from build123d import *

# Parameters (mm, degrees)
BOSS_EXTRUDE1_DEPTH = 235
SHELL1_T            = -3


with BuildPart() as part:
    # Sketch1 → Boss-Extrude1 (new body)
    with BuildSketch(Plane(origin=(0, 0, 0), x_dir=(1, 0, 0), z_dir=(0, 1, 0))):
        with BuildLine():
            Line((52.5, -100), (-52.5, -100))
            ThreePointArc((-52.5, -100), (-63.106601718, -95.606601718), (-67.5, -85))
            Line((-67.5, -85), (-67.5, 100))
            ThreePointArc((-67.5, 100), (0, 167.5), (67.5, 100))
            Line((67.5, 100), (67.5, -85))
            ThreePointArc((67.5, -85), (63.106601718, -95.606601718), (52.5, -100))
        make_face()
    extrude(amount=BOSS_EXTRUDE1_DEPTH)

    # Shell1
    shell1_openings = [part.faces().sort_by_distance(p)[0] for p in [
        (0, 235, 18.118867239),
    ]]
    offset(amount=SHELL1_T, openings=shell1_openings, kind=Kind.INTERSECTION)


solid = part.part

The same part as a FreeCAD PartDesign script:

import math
import FreeCAD as App
import Part
import Sketcher
Q = App.Units.Quantity


def faces_at(feature, points):
    """Names of the faces that lie closest to the given points."""
    faces = feature.Shape.Faces
    near = lambda p: min(range(len(faces)), key=lambda i: faces[i].distToShape(Part.Vertex(*p))[0])
    return sorted({f"Face{near(p) + 1}" for p in points})

doc = App.newDocument("Part")
params = doc.addObject("Spreadsheet::Sheet", "Params")
for row, (alias, value) in enumerate([
    ("sketch1_radius", "15 mm"),
    ("sketch1_radius2", "67.5 mm"),
    ("sketch1_height", "185 mm"),
    ("pad1_length", "235 mm"),
    ("thickness_wall", "3 mm"),
], start=1):
    params.set(f"A{row}", alias)
    params.set(f"B{row}", "=" + value)
    params.setAlias(f"B{row}", alias)

body = doc.addObject("PartDesign::Body", "Body")

sketch1 = body.newObject("Sketcher::SketchObject", "Sketch")
sketch1.AttachmentSupport = (doc.getObject("XZ_Plane"), [""])
sketch1.MapMode = "FlatFace"
sketch1.addGeometry([
    Part.LineSegment(App.Vector(-52, 100, 0), App.Vector(52, 100, 0)),
    Part.ArcOfCircle(Part.Circle(App.Vector(53, 85, 0), App.Vector(0, 0, 1), 15), math.radians(0), math.radians(90)),
    Part.LineSegment(App.Vector(68, 85, 0), App.Vector(68, -100, 0)),
    Part.ArcOfCircle(Part.Circle(App.Vector(0, -100, 0), App.Vector(0, 0, 1), 68), math.radians(180), math.radians(360)),
    Part.LineSegment(App.Vector(-68, -100, 0), App.Vector(-68, 85, 0)),
    Part.ArcOfCircle(Part.Circle(App.Vector(-53, 85, 0), App.Vector(0, 0, 1), 15), math.radians(90), math.radians(180)),
], False)
sketch1.addConstraint([
    Sketcher.Constraint("Tangent", 0, 2, 1, 2),
    Sketcher.Constraint("Tangent", 1, 1, 2, 1),
    Sketcher.Constraint("Tangent", 2, 2, 3, 2),
    Sketcher.Constraint("Tangent", 3, 1, 4, 1),
    Sketcher.Constraint("Tangent", 4, 2, 5, 2),
    Sketcher.Constraint("Tangent", 5, 1, 0, 1),
    Sketcher.Constraint("Horizontal", 0),
    Sketcher.Constraint("Vertical", 2),
    Sketcher.Constraint("Vertical", 4),
    Sketcher.Constraint("Equal", 1, 5),
    Sketcher.Constraint("PointOnObject", 3, 3, -2),
    Sketcher.Constraint("Radius", 1, Q("15 mm")),
    Sketcher.Constraint("Radius", 3, Q("67.5 mm")),
    Sketcher.Constraint("DistanceY", 2, 2, 2, 1, Q("185 mm")),
    Sketcher.Constraint("DistanceY", -1, 1, 1, 3, Q("85 mm")),
])
sketch1.setExpression("Constraints[11]", "Params.sketch1_radius")
sketch1.setExpression("Constraints[12]", "Params.sketch1_radius2")
sketch1.setExpression("Constraints[13]", "Params.sketch1_height")
pad1 = body.newObject("PartDesign::Pad", "Pad")
pad1.Profile = sketch1
pad1.setExpression("Length", "Params.pad1_length")
pad1.Reversed = True
doc.recompute()

thickness = body.newObject("PartDesign::Thickness", "Thickness")
thickness.Base = (pad1, faces_at(pad1, [(0, 235, -33.75)]))
thickness.setExpression("Value", "Params.thickness_wall")
thickness.Reversed = True
thickness.Join = "Intersection"

doc.recompute()
